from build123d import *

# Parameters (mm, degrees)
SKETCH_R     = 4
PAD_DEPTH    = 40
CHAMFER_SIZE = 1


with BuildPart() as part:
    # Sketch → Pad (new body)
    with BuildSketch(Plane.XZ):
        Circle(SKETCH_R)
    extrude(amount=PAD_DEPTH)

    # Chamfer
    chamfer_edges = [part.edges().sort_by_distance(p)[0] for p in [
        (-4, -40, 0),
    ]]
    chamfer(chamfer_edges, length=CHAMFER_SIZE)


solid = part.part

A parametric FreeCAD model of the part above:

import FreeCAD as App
import Part
import Sketcher

V = App.Vector
Q = App.Units.Quantity


def edges_at(feature, points):
    """Names of the edges that pass closest to the given points."""
    edges = feature.Shape.Edges
    near = lambda p: min(range(len(edges)), key=lambda i: edges[i].distToShape(Part.Vertex(*p))[0])
    return sorted({f"Edge{near(p) + 1}" for p in points})

doc = App.newDocument("Part")
body = doc.addObject("PartDesign::Body", "Body")

# Sketch on XZ plane
sketch1 = doc.addObject("Sketcher::SketchObject", "Sketch")
body.addObject(sketch1)
sketch1.AttachmentSupport = (doc.XZ_Plane, [""])
sketch1.MapMode = "FlatFace"
sketch1.addGeometry(Part.Circle(V(0, 0, 0), V(0, 0, 1), 4), False)
sketch1.addConstraint(Sketcher.Constraint("Coincident", 0, 3, -1, 1))
sketch1.addConstraint(Sketcher.Constraint("Diameter", 0, Q("8 mm")))
pad1 = doc.addObject("PartDesign::Pad", "Pad")
body.addObject(pad1)
pad1.Profile = sketch1
pad1.Length = 40
doc.recompute()

chamfer = doc.addObject("PartDesign::Chamfer", "Chamfer")
body.addObject(chamfer)
chamfer.Base = (pad1, edges_at(pad1, [(-4, -40, 0)]))
chamfer.Size = 1

doc.recompute()
